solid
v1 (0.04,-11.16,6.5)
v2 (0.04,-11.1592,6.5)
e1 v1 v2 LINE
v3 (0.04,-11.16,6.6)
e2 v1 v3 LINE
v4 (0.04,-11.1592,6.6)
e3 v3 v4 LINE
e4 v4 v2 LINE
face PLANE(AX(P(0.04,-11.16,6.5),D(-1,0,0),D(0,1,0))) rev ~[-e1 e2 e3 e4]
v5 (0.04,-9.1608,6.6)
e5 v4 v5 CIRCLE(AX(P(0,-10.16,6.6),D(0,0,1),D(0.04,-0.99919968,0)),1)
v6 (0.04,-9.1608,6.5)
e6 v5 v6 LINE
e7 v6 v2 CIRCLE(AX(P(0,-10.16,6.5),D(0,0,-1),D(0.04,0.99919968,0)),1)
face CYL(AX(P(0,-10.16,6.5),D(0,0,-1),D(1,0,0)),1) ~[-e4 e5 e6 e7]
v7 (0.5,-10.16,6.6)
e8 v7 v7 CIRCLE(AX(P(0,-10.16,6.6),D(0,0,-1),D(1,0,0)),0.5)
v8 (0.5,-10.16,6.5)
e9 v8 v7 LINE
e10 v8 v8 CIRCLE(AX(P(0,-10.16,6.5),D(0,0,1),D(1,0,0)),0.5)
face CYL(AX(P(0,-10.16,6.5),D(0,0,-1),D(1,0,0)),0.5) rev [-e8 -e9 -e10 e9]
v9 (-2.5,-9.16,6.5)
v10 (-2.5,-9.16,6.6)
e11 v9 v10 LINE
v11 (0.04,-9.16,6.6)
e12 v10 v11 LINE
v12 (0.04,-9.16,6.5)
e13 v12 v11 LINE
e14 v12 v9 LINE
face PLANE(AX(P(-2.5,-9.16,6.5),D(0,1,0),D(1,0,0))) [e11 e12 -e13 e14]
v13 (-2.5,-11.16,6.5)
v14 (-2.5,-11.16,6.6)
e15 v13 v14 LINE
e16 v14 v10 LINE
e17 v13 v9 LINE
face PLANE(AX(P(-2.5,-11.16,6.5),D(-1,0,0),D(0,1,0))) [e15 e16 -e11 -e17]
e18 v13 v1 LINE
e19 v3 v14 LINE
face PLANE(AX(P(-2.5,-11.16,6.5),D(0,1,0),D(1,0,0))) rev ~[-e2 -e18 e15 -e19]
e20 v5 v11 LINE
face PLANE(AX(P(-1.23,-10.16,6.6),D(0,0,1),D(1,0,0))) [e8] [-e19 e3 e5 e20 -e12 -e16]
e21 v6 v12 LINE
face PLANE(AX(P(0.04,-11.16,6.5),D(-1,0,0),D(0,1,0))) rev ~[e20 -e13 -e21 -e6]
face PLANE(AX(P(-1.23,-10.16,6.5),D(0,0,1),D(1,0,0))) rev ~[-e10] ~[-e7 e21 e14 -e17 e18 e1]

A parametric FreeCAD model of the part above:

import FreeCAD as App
import Part
import Sketcher
from FreeCAD import Vector
Q = App.Units.Quantity


def add_polygon(sketch, points):
    """Adds a closed chain of lines whose ends are joined by coincident constraints."""
    first, n = sketch.GeometryCount, len(points)
    for a, b in zip(points, points[1:] + points[:1]):
        sketch.addGeometry(Part.LineSegment(App.Vector(*a, 0), App.Vector(*b, 0)), False)
    for i in range(n):
        sketch.addConstraint(Sketcher.Constraint("Coincident", first + i, 2, first + (i + 1) % n, 1))

doc = App.newDocument("Part")
body = doc.addObject("PartDesign::Body", "Body")

sketch1 = body.newObject("Sketcher::SketchObject", "Sketch")
sketch1.AttachmentSupport = (doc.getObject("XY_Plane"), [""])
sketch1.MapMode = "FlatFace"
sketch1.AttachmentOffset = App.Placement(Vector(0, 0, 1), App.Rotation())
sketch1.addGeometry(Part.Circle(Vector(0, 0, 0), Vector(0, 0, 1), 0.5), False)
sketch1.addConstraint(Sketcher.Constraint("Coincident", 0, 3, -1, 1))
sketch1.addConstraint(Sketcher.Constraint("Diameter", 0, Q("1 mm")))
pad1 = body.newObject("PartDesign::Pad", "Pad")
pad1.Profile = sketch1
pad1.Length = 0.1
body2 = doc.addObject("PartDesign::Body", "Body001")

sketch2 = body2.newObject("Sketcher::SketchObject", "Sketch001")
sketch2.AttachmentSupport = (doc.getObject("XY_Plane001"), [""])
sketch2.MapMode = "FlatFace"
sketch2.AttachmentOffset = App.Placement(Vector(0, 0, 1), App.Rotation())
add_polygon(sketch2, [(-2.5, 1), (-2.5, -1), (0.04, -1), (0.04, 1)])
sketch2.addConstraint(Sketcher.Constraint("Vertical", 0))
sketch2.addConstraint(Sketcher.Constraint("Horizontal", 1))
sketch2.addConstraint(Sketcher.Constraint("Vertical", 2))
sketch2.addConstraint(Sketcher.Constraint("Horizontal", 3))
sketch2.addConstraint(Sketcher.Constraint("DistanceY", 0, 2, 0, 1, Q("2 mm")))
sketch2.addConstraint(Sketcher.Constraint("DistanceY", 0, 2, -1, 1, Q("1 mm")))
sketch2.addConstraint(Sketcher.Constraint("DistanceX", 1, 1, 1, 2, Q("2.54 mm")))
sketch2.addConstraint(Sketcher.Constraint("DistanceX", 0, 2, -1, 1, Q("2.5 mm")))
pad2 = body2.newObject("PartDesign::Pad", "Pad001")
pad2.Profile = sketch2
pad2.Length = 0.1
doc.recompute()

boolean = body2.newObject("PartDesign::Boolean", "Boolean")
boolean.Type = "Cut"
boolean.addObjects([body])
body3 = doc.addObject("PartDesign::Body", "Body002")

sketch3 = body3.newObject("Sketcher::SketchObject", "Sketch002")
sketch3.AttachmentSupport = (doc.getObject("XY_Plane002"), [""])
sketch3.MapMode = "FlatFace"
sketch3.AttachmentOffset = App.Placement(Vector(0, 0, 1), App.Rotation())
sketch3.addGeometry(Part.Circle(Vector(0, 0, 0), Vector(0, 0, 1), 0.5), False)
sketch3.addConstraint(Sketcher.Constraint("Coincident", 0, 3, -1, 1))
sketch3.addConstraint(Sketcher.Constraint("Diameter", 0, Q("1 mm")))
pad3 = body3.newObject("PartDesign::Pad", "Pad002")
pad3.Profile = sketch3
pad3.Length = 0.1
body4 = doc.addObject("PartDesign::Body", "Body003")

sketch4 = body4.newObject("Sketcher::SketchObject", "Sketch003")
sketch4.AttachmentSupport = (doc.getObject("XY_Plane003"), [""])
sketch4.MapMode = "FlatFace"
sketch4.AttachmentOffset = App.Placement(Vector(0, 0, 1), App.Rotation())
sketch4.addGeometry(Part.Circle(Vector(0, 0, 0), Vector(0, 0, 1), 1), False)
sketch4.addConstraint(Sketcher.Constraint("Coincident", 0, 3, -1, 1))
sketch4.addConstraint(Sketcher.Constraint("Diameter", 0, Q("2 mm")))
pad4 = body4.newObject("PartDesign::Pad", "Pad003")
pad4.Profile = sketch4
pad4.Length = 0.1
doc.recompute()

boolean2 = body4.newObject("PartDesign::Boolean", "Boolean001")
boolean2.Type = "Cut"
boolean2.addObjects([body3])
doc.recompute()

boolean3 = body4.newObject("PartDesign::Boolean", "Boolean002")
boolean3.Type = "Fuse"
boolean3.addObjects([body2])
body5 = doc.addObject("PartDesign::Body", "Body004")
doc.recompute()

body4.Placement = App.Placement(Vector(0, -10.16, 5.5), App.Rotation(Vector(0, 0, 1), 0))
boolean4 = body5.newObject("PartDesign::Boolean", "Boolean003")
boolean4.Type = "Fuse"
boolean4.addObjects([body4])

doc.recompute()
